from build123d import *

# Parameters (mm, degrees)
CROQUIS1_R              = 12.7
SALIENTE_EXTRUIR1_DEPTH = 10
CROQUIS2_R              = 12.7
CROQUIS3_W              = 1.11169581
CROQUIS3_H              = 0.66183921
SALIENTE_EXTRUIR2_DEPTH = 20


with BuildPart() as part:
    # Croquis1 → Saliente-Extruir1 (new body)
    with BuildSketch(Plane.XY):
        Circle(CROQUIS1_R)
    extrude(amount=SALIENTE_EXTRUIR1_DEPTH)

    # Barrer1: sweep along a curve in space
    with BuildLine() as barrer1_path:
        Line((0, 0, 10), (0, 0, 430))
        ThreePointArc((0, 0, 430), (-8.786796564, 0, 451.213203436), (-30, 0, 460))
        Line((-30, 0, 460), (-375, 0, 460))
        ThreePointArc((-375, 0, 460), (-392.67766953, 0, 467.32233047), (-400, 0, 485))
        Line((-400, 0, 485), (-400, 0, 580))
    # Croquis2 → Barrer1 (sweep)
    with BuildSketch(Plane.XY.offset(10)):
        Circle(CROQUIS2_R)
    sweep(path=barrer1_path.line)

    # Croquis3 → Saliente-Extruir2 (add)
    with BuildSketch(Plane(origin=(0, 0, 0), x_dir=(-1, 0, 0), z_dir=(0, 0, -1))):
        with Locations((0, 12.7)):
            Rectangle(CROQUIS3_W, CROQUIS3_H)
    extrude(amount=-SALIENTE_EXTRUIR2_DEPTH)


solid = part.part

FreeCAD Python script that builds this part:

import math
import FreeCAD as App
import Part
import Sketcher

doc = App.newDocument("Part")
body = doc.addObject("PartDesign::Body", "Body")

# Sketch on XY plane
sketch1 = body.newObject("Sketcher::SketchObject", "Sketch")
sketch1.AttachmentSupport = (doc.getObject("XY_Plane"), [""])
sketch1.MapMode = "FlatFace"
sketch1.addGeometry(Part.Circle(App.Vector(0, 0, 0), App.Vector(0, 0, 1), 13), False)
sketch1.addConstraint([
    Sketcher.Constraint("Coincident", 0, 3, -1, 1),
    Sketcher.Constraint("Diameter", 0, 25.4),
])
pad1 = body.newObject("PartDesign::Pad", "Pad")
pad1.Profile = sketch1
pad1.Length = 10

# Sketch on XY plane
sketch2 = body.newObject("Sketcher::SketchObject", "Sketch001")
sketch2.AttachmentSupport = (doc.getObject("XY_Plane"), [""])
sketch2.MapMode = "FlatFace"
sketch2.AttachmentOffset = App.Placement(App.Vector(0, 0, 10), App.Rotation())
sketch2.addGeometry(Part.Circle(App.Vector(0, 0, 0), App.Vector(0, 0, 1), 13), False)
sketch2.addConstraint([
    Sketcher.Constraint("Coincident", 0, 3, -1, 1),
    Sketcher.Constraint("Diameter", 0, 25.4),
])

# Sketch on XZ plane
sketch3 = body.newObject("Sketcher::SketchObject", "Sketch002")
sketch3.AttachmentSupport = (doc.getObject("XZ_Plane"), [""])
sketch3.MapMode = "FlatFace"
sketch3.addGeometry([
    Part.LineSegment(App.Vector(0, 10, 0), App.Vector(0, 430, 0)),  # 0
    Part.ArcOfCircle(Part.Circle(App.Vector(-30, 430, 0), App.Vector(0, 0, 1), 30), math.radians(0), math.radians(90)),  # 1
    Part.LineSegment(App.Vector(-30, 460, 0), App.Vector(-375, 460, 0)),  # 2
    Part.ArcOfCircle(Part.Circle(App.Vector(-375, 485, 0), App.Vector(0, 0, 1), 25), math.radians(180), math.radians(270)),  # 3
    Part.LineSegment(App.Vector(-400, 485, 0), App.Vector(-400, 580, 0)),  # 4
], False)
sketch3.addConstraint([
    Sketcher.Constraint("Tangent", 0, 2, 1, 1),
    Sketcher.Constraint("Tangent", 1, 2, 2, 1),
    Sketcher.Constraint("Tangent", 2, 2, 3, 2),
    Sketcher.Constraint("Tangent", 3, 1, 4, 1),
    Sketcher.Constraint("Vertical", 0),
    Sketcher.Constraint("Horizontal", 2),
    Sketcher.Constraint("Vertical", 4),
    Sketcher.Constraint("PointOnObject", 0, 1, -2),
    Sketcher.Constraint("Radius", 1, 30.0),
    Sketcher.Constraint("Radius", 3, 25.0),
    Sketcher.Constraint("DistanceX", 2, 2, 2, 1, 345.0),
    Sketcher.Constraint("DistanceY", 0, 1, 0, 2, 420.0),
    Sketcher.Constraint("DistanceY", 4, 1, 4, 2, 95.0),
    Sketcher.Constraint("DistanceY", -1, 1, 1, 3, 430.0),
])
doc.recompute()

additivepipe = body.newObject("PartDesign::AdditivePipe", "AdditivePipe")
additivepipe.Profile = sketch2
additivepipe.Spine = (sketch3, ["Edge1", "Edge2", "Edge3", "Edge4", "Edge5"])

# Sketch on XY plane
sketch4 = body.newObject("Sketcher::SketchObject", "Sketch003")
sketch4.AttachmentSupport = (doc.getObject("XY_Plane"), [""])
sketch4.MapMode = "FlatFace"
sketch4.addGeometry([
    Part.LineSegment(App.Vector(0.6, 13, 0), App.Vector(0.6, 12.4, 0)),
    Part.LineSegment(App.Vector(0.6, 12.4, 0), App.Vector(-0.6, 12.4, 0)),
    Part.LineSegment(App.Vector(-0.6, 12.4, 0), App.Vector(-0.6, 13, 0)),
    Part.LineSegment(App.Vector(-0.6, 13, 0), App.Vector(0.6, 13, 0)),
], False)
sketch4.addConstraint([
    Sketcher.Constraint("Coincident", 0, 2, 1, 1),
    Sketcher.Constraint("Coincident", 1, 2, 2, 1),
    Sketcher.Constraint("Coincident", 2, 2, 3, 1),
    Sketcher.Constraint("Coincident", 3, 2, 0, 1),
    Sketcher.Constraint("Vertical", 0),
    Sketcher.Constraint("Horizontal", 1),
    Sketcher.Constraint("Vertical", 2),
    Sketcher.Constraint("Horizontal", 3),
    Sketcher.Constraint("DistanceY", 0, 2, 0, 1, 0.661839),
    Sketcher.Constraint("DistanceX", 1, 2, 1, 1, 1.111696),
    Sketcher.Constraint("DistanceY", -1, 1, 0, 2, 12.36908),
    Sketcher.Constraint("DistanceX", -1, 1, 0, 2, 0.555848),
])
pad2 = body.newObject("PartDesign::Pad", "Pad001")
pad2.Profile = sketch4
pad2.Length = 20

doc.recompute()
